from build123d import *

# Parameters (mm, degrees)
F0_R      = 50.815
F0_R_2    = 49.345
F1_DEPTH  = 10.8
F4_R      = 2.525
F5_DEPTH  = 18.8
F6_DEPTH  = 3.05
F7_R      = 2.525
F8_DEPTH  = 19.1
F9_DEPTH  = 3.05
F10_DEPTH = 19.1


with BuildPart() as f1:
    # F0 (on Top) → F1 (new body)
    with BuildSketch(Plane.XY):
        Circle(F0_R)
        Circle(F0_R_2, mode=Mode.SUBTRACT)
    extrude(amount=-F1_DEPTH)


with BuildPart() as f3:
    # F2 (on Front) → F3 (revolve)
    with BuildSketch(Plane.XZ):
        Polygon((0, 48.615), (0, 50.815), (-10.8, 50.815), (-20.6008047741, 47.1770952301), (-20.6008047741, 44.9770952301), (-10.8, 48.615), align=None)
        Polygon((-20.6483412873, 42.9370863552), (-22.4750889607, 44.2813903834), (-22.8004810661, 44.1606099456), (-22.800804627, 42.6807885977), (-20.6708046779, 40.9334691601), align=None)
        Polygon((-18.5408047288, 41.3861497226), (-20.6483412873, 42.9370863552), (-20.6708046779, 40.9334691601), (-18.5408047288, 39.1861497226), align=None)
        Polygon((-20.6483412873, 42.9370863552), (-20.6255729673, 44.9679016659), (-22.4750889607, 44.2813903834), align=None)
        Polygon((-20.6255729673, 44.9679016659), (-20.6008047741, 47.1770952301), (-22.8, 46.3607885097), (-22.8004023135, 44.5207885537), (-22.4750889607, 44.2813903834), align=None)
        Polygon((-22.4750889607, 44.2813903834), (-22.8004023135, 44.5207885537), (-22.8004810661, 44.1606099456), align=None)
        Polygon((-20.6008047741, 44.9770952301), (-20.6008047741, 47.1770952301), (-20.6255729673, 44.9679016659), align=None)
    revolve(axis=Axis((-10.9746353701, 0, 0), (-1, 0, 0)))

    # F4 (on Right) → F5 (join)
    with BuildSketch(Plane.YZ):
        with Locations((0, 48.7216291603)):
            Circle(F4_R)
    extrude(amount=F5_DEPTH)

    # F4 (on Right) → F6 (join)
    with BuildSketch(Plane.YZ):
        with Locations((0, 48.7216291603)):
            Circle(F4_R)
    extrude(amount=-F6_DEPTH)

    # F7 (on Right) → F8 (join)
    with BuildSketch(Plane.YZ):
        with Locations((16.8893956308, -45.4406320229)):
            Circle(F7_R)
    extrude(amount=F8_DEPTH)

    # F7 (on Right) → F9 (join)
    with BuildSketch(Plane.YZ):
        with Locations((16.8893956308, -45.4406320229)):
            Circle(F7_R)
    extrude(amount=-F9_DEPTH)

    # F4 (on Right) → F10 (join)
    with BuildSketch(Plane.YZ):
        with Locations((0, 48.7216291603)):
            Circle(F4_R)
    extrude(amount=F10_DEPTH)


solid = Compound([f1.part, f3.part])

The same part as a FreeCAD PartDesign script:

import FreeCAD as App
import Part
import Sketcher
Q = App.Units.Quantity

doc = App.newDocument("Part")
body = doc.addObject("PartDesign::Body", "Body")

# Sketch on XY plane
sketch1 = doc.addObject("Sketcher::SketchObject", "Sketch")
body.addObject(sketch1)
sketch1.AttachmentSupport = (doc.XY_Plane, [""])
sketch1.MapMode = "FlatFace"
sketch1.addGeometry([
    Part.Circle(App.Vector(0, 0, 0), App.Vector(0, 0, 1), 51),
    Part.Circle(App.Vector(0, 0, 0), App.Vector(0, 0, 1), 49),
], False)
sketch1.addConstraint([
    Sketcher.Constraint("Coincident", 0, 3, -1, 1),
    Sketcher.Constraint("Coincident", 1, 3, -1, 1),
    Sketcher.Constraint("Diameter", 0, Q("101.63 mm")),
    Sketcher.Constraint("Diameter", 1, Q("98.69 mm")),
])
pad1 = doc.addObject("PartDesign::Pad", "Pad")
body.addObject(pad1)
pad1.Profile = sketch1
pad1.Length = 10.8
pad1.Reversed = True
body2 = doc.addObject("PartDesign::Body", "Body001")

# Sketch on XZ plane
sketch2 = doc.addObject("Sketcher::SketchObject", "Sketch001")
body2.addObject(sketch2)
sketch2.AttachmentSupport = (doc.getObject("XZ_Plane001"), [""])
sketch2.MapMode = "FlatFace"
sketch2.addGeometry([
    Part.LineSegment(App.Vector(0, 48.615, 0), App.Vector(0, 50.815, 0)),  # 0
    Part.LineSegment(App.Vector(0, 50.815, 0), App.Vector(-10.8, 50.815, 0)),  # 1
    Part.LineSegment(App.Vector(-10.8, 50.815, 0), App.Vector(-20.601, 47.177, 0)),  # 2
    Part.LineSegment(App.Vector(-20.601, 47.177, 0), App.Vector(-22.8, 46.361, 0)),  # 3
    Part.LineSegment(App.Vector(-22.8, 46.361, 0), App.Vector(-22.8, 44.521, 0)),  # 4
    Part.LineSegment(App.Vector(-22.8, 44.521, 0), App.Vector(-22.8, 44.161, 0)),  # 5
    Part.LineSegment(App.Vector(-22.8, 44.161, 0), App.Vector(-22.801, 42.681, 0)),  # 6
    Part.LineSegment(App.Vector(-22.801, 42.681, 0), App.Vector(-20.671, 40.933, 0)),  # 7
    Part.LineSegment(App.Vector(-20.671, 40.933, 0), App.Vector(-18.541, 39.186, 0)),  # 8
    Part.LineSegment(App.Vector(-18.541, 39.186, 0), App.Vector(-18.541, 41.386, 0)),  # 9
    Part.LineSegment(App.Vector(-18.541, 41.386, 0), App.Vector(-20.648, 42.937, 0)),  # 10
    Part.LineSegment(App.Vector(-20.648, 42.937, 0), App.Vector(-20.626, 44.968, 0)),  # 11
    Part.LineSegment(App.Vector(-20.626, 44.968, 0), App.Vector(-20.601, 44.977, 0)),  # 12
    Part.LineSegment(App.Vector(-20.601, 44.977, 0), App.Vector(-10.8, 48.615, 0)),  # 13
    Part.LineSegment(App.Vector(-10.8, 48.615, 0), App.Vector(0, 48.615, 0)),  # 14
], False)
sketch2.addConstraint([
    Sketcher.Constraint("Coincident", 0, 2, 1, 1),
    Sketcher.Constraint("Coincident", 1, 2, 2, 1),
    Sketcher.Constraint("Coincident", 2, 2, 3, 1),
    Sketcher.Constraint("Coincident", 3, 2, 4, 1),
    Sketcher.Constraint("Coincident", 4, 2, 5, 1),
    Sketcher.Constraint("Coincident", 5, 2, 6, 1),
    Sketcher.Constraint("Coincident", 6, 2, 7, 1),
    Sketcher.Constraint("Coincident", 7, 2, 8, 1),
    Sketcher.Constraint("Coincident", 8, 2, 9, 1),
    Sketcher.Constraint("Coincident", 9, 2, 10, 1),
    Sketcher.Constraint("Coincident", 10, 2, 11, 1),
    Sketcher.Constraint("Coincident", 11, 2, 12, 1),
    Sketcher.Constraint("Coincident", 12, 2, 13, 1),
    Sketcher.Constraint("Coincident", 13, 2, 14, 1),
    Sketcher.Constraint("Coincident", 14, 2, 0, 1),
    Sketcher.Constraint("Vertical", 0),
    Sketcher.Constraint("Horizontal", 1),
    Sketcher.Constraint("Vertical", 9),
    Sketcher.Constraint("Horizontal", 14),
    Sketcher.Constraint("PointOnObject", 0, 2, -2),
    Sketcher.Constraint("Parallel", 2, 3),
    Sketcher.Constraint("Parallel", 4, 5),
    Sketcher.Constraint("Parallel", 5, 6),
    Sketcher.Constraint("Parallel", 7, 8),
    Sketcher.Constraint("Parallel", 3, 12),
    Sketcher.Constraint("Parallel", 3, 13),
    Sketcher.Constraint("Vertical", 2, 2, 12, 2),
    Sketcher.Constraint("Vertical", 1, 2, 13, 2),
    Sketcher.Constraint("Equal", 0, 9),
    Sketcher.Constraint("Equal", 7, 8),
    Sketcher.Constraint("DistanceX", 1, 2, 1, 1, Q("10.8 mm")),
    Sketcher.Constraint("DistanceY", 0, 1, 0, 2, Q("2.2 mm")),
    Sketcher.Constraint("DistanceX", 3, 2, 1, 2, Q("12 mm")),
    Sketcher.Constraint("DistanceX", 6, 2, 2, 2, Q("2.2 mm")),
    Sketcher.Constraint("Distance", 4, Q("1.84 mm")),
    Sketcher.Constraint("DistanceY", 6, 2, 4, 2, Q("1.84 mm")),
    Sketcher.Constraint("DistanceX", 6, 2, 7, 2, Q("2.13 mm")),
    Sketcher.Constraint("Distance", 7, Q("2.755 mm")),
    Sketcher.Constraint("DistanceY", -1, 1, 0, 2, Q("50.815 mm")),
    Sketcher.Constraint("Distance", 10, Q("2.616699 mm")),
    Sketcher.Constraint("DistanceY", -1, 1, 11, 2, Q("44.967902 mm")),
    Sketcher.Constraint("Distance", 2, Q("10.454192 mm")),
    Sketcher.Constraint("Distance", 3, Q("2.345808 mm")),
    Sketcher.Constraint("Distance", 5, Q("0.360179 mm")),
    Sketcher.Constraint("DistanceX", 10, 2, -1, 1, Q("20.648341 mm")),
])
revolution = doc.addObject("PartDesign::Revolution", "Revolution")
body2.addObject(revolution)
revolution.Profile = sketch2
revolution.ReferenceAxis = (sketch2, ["H_Axis"])
revolution.Angle = 360

# Sketch on YZ plane
sketch3 = doc.addObject("Sketcher::SketchObject", "Sketch002")
body2.addObject(sketch3)
sketch3.AttachmentSupport = (doc.getObject("YZ_Plane001"), [""])
sketch3.MapMode = "FlatFace"
sketch3.addGeometry(Part.Circle(App.Vector(0, 48.7, 0), App.Vector(0, 0, 1), 2.5), False)
sketch3.addConstraint([
    Sketcher.Constraint("PointOnObject", 0, 3, -2),
    Sketcher.Constraint("Diameter", 0, Q("5.05 mm")),
    Sketcher.Constraint("DistanceY", -1, 1, 0, 3, Q("48.721629 mm")),
])
pad2 = doc.addObject("PartDesign::Pad", "Pad001")
body2.addObject(pad2)
pad2.Profile = sketch3
pad2.Length = 18.8

# Sketch on YZ plane
sketch4 = doc.addObject("Sketcher::SketchObject", "Sketch003")
body2.addObject(sketch4)
sketch4.AttachmentSupport = (doc.getObject("YZ_Plane001"), [""])
sketch4.MapMode = "FlatFace"
sketch4.addGeometry(Part.Circle(App.Vector(0, 48.7, 0), App.Vector(0, 0, 1), 2.5), False)
sketch4.addConstraint([
    Sketcher.Constraint("PointOnObject", 0, 3, -2),
    Sketcher.Constraint("Diameter", 0, Q("5.05 mm")),
    Sketcher.Constraint("DistanceY", -1, 1, 0, 3, Q("48.721629 mm")),
])
pad3 = doc.addObject("PartDesign::Pad", "Pad002")
body2.addObject(pad3)
pad3.Profile = sketch4
pad3.Length = 3.05
pad3.Reversed = True

# Sketch on YZ plane
sketch5 = doc.addObject("Sketcher::SketchObject", "Sketch004")
body2.addObject(sketch5)
sketch5.AttachmentSupport = (doc.getObject("YZ_Plane001"), [""])
sketch5.MapMode = "FlatFace"
sketch5.addGeometry(Part.Circle(App.Vector(16.9, -45.4, 0), App.Vector(0, 0, 1), 2.5), False)
sketch5.addConstraint([
    Sketcher.Constraint("Diameter", 0, Q("5.05 mm")),
    Sketcher.Constraint("DistanceX", -1, 1, 0, 3, Q("16.889396 mm")),
    Sketcher.Constraint("DistanceY", 0, 3, -1, 1, Q("45.440632 mm")),
])
pad4 = doc.addObject("PartDesign::Pad", "Pad003")
body2.addObject(pad4)
pad4.Profile = sketch5
pad4.Length = 19.1

# Sketch on YZ plane
sketch6 = doc.addObject("Sketcher::SketchObject", "Sketch005")
body2.addObject(sketch6)
sketch6.AttachmentSupport = (doc.getObject("YZ_Plane001"), [""])
sketch6.MapMode = "FlatFace"
sketch6.addGeometry(Part.Circle(App.Vector(16.9, -45.4, 0), App.Vector(0, 0, 1), 2.5), False)
sketch6.addConstraint([
    Sketcher.Constraint("Diameter", 0, Q("5.05 mm")),
    Sketcher.Constraint("DistanceX", -1, 1, 0, 3, Q("16.889396 mm")),
    Sketcher.Constraint("DistanceY", 0, 3, -1, 1, Q("45.440632 mm")),
])
pad5 = doc.addObject("PartDesign::Pad", "Pad004")
body2.addObject(pad5)
pad5.Profile = sketch6
pad5.Length = 3.05
pad5.Reversed = True

# Sketch on YZ plane
sketch7 = doc.addObject("Sketcher::SketchObject", "Sketch006")
body2.addObject(sketch7)
sketch7.AttachmentSupport = (doc.getObject("YZ_Plane001"), [""])
sketch7.MapMode = "FlatFace"
sketch7.addGeometry(Part.Circle(App.Vector(0, 48.7, 0), App.Vector(0, 0, 1), 2.5), False)
sketch7.addConstraint([
    Sketcher.Constraint("PointOnObject", 0, 3, -2),
    Sketcher.Constraint("Diameter", 0, Q("5.05 mm")),
    Sketcher.Constraint("DistanceY", -1, 1, 0, 3, Q("48.721629 mm")),
])
pad6 = doc.addObject("PartDesign::Pad", "Pad005")
body2.addObject(pad6)
pad6.Profile = sketch7
pad6.Length = 19.1

doc.recompute()
